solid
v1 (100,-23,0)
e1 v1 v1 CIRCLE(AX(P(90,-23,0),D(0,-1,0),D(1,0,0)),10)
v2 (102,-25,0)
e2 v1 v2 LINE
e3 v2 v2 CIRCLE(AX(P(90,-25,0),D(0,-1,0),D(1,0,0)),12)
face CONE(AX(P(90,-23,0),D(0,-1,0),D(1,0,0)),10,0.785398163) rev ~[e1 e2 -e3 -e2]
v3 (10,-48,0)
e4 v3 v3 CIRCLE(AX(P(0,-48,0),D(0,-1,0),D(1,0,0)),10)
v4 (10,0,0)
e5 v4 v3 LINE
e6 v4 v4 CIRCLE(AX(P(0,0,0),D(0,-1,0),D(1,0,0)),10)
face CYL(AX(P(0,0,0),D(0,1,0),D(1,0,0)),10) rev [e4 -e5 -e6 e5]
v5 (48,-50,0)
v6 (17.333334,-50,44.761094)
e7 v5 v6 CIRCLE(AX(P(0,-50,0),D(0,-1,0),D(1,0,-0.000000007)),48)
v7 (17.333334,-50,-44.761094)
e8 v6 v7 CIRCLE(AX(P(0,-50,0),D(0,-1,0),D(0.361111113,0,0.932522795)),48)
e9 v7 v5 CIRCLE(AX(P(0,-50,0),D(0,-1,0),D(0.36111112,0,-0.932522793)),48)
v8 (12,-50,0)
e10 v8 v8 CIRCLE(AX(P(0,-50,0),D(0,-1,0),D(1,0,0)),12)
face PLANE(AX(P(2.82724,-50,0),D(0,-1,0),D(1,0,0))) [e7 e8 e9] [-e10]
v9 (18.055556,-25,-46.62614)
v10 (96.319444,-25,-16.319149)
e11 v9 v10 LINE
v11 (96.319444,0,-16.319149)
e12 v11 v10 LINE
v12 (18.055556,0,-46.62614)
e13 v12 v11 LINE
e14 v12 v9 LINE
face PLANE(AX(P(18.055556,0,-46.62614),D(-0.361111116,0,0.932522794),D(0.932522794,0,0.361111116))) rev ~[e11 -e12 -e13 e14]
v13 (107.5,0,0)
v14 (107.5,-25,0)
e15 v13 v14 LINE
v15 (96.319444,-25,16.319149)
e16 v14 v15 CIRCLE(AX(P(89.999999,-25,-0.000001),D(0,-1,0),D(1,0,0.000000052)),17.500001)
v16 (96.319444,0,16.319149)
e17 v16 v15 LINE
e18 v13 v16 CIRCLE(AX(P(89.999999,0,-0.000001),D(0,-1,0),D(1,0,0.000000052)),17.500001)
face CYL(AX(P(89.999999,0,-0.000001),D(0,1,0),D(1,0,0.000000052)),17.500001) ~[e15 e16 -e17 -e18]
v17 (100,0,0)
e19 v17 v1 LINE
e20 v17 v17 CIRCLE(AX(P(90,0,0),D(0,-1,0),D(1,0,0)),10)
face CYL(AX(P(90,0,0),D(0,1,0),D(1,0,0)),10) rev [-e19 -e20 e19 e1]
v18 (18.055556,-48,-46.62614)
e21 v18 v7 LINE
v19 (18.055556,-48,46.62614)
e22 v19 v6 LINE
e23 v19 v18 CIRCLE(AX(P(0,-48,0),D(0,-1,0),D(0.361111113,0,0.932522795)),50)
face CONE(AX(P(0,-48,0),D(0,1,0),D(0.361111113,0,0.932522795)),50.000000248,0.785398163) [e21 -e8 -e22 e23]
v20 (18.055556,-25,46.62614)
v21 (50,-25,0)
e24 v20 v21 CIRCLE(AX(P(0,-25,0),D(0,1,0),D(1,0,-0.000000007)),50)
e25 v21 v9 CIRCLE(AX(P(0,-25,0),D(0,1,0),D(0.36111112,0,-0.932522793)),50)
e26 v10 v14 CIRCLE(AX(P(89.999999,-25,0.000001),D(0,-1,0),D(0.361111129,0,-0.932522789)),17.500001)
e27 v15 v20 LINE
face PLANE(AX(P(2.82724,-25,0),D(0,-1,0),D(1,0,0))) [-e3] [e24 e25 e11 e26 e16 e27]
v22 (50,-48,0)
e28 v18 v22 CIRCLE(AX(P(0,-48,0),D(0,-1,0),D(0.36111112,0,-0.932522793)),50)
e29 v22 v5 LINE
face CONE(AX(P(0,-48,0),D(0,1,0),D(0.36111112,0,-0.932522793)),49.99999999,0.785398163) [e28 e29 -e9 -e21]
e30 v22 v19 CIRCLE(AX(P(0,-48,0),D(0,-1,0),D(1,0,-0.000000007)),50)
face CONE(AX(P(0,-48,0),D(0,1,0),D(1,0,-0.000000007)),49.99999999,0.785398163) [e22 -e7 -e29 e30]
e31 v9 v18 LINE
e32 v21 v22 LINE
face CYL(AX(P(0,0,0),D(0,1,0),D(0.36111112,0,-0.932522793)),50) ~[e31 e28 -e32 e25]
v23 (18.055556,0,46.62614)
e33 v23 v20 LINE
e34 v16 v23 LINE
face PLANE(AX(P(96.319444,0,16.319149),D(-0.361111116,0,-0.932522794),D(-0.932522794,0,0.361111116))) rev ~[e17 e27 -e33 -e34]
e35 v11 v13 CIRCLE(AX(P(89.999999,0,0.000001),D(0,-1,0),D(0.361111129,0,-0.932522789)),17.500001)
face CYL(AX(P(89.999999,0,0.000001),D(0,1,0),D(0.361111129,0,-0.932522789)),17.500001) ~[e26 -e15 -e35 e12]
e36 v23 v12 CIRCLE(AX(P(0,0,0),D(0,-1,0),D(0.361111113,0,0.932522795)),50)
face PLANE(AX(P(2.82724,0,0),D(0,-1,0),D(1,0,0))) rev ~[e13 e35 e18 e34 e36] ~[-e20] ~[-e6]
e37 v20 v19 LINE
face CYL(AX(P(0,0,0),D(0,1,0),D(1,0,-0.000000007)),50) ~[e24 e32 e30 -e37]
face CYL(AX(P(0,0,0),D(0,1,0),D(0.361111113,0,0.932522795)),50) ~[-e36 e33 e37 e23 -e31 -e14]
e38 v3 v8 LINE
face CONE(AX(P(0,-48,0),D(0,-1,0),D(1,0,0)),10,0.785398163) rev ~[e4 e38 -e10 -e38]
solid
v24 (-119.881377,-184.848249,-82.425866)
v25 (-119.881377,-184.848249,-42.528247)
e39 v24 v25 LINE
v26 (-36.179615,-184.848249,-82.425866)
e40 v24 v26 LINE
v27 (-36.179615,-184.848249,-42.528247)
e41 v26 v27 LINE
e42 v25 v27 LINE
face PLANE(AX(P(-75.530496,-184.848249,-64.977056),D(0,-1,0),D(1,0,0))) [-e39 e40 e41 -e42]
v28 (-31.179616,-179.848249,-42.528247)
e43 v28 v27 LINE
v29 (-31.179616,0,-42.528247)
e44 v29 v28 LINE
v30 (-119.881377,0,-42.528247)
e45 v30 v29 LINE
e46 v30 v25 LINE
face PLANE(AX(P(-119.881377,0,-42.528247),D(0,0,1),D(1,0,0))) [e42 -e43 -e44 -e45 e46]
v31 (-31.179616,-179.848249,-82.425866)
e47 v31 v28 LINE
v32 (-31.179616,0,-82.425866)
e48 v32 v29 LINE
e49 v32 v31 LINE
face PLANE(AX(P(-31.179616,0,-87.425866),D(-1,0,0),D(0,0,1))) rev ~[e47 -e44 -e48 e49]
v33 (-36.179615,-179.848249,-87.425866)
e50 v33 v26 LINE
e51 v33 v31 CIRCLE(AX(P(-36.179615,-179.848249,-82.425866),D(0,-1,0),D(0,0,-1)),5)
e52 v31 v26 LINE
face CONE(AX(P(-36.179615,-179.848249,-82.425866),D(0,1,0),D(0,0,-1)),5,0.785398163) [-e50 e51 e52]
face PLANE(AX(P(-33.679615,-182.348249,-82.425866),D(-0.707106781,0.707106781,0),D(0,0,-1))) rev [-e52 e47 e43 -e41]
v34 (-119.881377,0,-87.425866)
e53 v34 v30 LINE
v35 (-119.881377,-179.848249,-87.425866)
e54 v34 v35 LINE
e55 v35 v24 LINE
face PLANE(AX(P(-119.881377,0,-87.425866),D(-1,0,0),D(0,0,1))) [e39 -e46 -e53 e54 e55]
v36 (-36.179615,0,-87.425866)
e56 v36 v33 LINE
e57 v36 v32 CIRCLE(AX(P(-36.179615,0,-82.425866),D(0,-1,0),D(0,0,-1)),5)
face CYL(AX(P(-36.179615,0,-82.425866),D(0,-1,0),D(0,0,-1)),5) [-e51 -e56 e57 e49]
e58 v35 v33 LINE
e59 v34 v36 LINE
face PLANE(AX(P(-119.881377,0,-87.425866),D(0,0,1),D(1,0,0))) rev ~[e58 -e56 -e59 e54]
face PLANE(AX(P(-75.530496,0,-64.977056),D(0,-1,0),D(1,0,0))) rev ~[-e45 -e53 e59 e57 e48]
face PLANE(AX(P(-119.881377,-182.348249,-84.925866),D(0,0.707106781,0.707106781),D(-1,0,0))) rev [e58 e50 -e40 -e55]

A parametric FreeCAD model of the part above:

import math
import FreeCAD as App
import Part
import Sketcher

V = App.Vector


def edges_at(feature, points):
    """Names of the edges that pass closest to the given points."""
    edges = feature.Shape.Edges
    near = lambda p: min(range(len(edges)), key=lambda i: edges[i].distToShape(Part.Vertex(*p))[0])
    return sorted({f"Edge{near(p) + 1}" for p in points})

doc = App.newDocument("Part")
params = doc.addObject("Spreadsheet::Sheet", "Params")
for row, (alias, value) in enumerate([
    ("sketch1_diameter", "20 mm"),
    ("sketch1_radius", "50 mm"),
    ("sketch1_radius2", "17.500001 mm"),
    ("pad1_length", "25 mm"),
    ("sketch2_diameter", "20 mm"),
    ("sketch2_radius", "50 mm"),
    ("pad2_length", "50 mm"),
    ("chamfer_size", "2 mm"),
    ("pad3_length", "184.848249 mm"),
    ("fillet_radius", "5 mm"),
    ("chamfer2_size", "5 mm"),
], start=1):
    params.set(f"A{row}", alias)
    params.set(f"B{row}", "=" + value)
    params.setAlias(f"B{row}", alias)

body = doc.addObject("PartDesign::Body", "Body")

sketch1 = body.newObject("Sketcher::SketchObject", "Sketch")
sketch1.AttachmentSupport = (doc.getObject("XZ_Plane"), [""])
sketch1.MapMode = "FlatFace"
sketch1.addGeometry(Part.ArcOfCircle(Part.Circle(V(0, 0, 0), V(0, 0, 1), 50), math.radians(69), math.radians(291)), False)
sketch1.addGeometry(Part.LineSegment(V(18, -47, 0), V(96, -16, 0)), False)
sketch1.addGeometry(Part.ArcOfCircle(Part.Circle(V(90, 0, 0), V(0, 0, 1), 18), math.radians(-69), math.radians(0)), False)
sketch1.addGeometry(Part.ArcOfCircle(Part.Circle(V(90, 0, 0), V(0, 0, 1), 18), math.radians(0), math.radians(69)), False)
sketch1.addGeometry(Part.LineSegment(V(96, 16, 0), V(18, 47, 0)), False)
sketch1.addGeometry(Part.Circle(V(0, 0, 0), V(0, 0, 1), 10), False)
sketch1.addGeometry(Part.Circle(V(90, 0, 0), V(0, 0, 1), 10), False)
sketch1.addConstraint(Sketcher.Constraint("Tangent", 0, 2, 1, 1))
sketch1.addConstraint(Sketcher.Constraint("Tangent", 1, 2, 2, 1))
sketch1.addConstraint(Sketcher.Constraint("Tangent", 2, 2, 3, 1))
sketch1.addConstraint(Sketcher.Constraint("Tangent", 3, 2, 4, 1))
sketch1.addConstraint(Sketcher.Constraint("Tangent", 4, 2, 0, 1))
sketch1.addConstraint(Sketcher.Constraint("Coincident", 0, 3, -1, 1))
sketch1.addConstraint(Sketcher.Constraint("Coincident", 5, 3, -1, 1))
sketch1.addConstraint(Sketcher.Constraint("Coincident", 6, 3, 2, 3))
sketch1.addConstraint(Sketcher.Constraint("Equal", 2, 3))
sketch1.addConstraint(Sketcher.Constraint("Equal", 5, 6))
sketch1.addConstraint(Sketcher.Constraint("PointOnObject", 2, 3, -1))
sketch1.addConstraint(Sketcher.Constraint("PointOnObject", 2, 2, -1))
sketch1.addConstraint(Sketcher.Constraint("Diameter", 5, 20.0))
sketch1.addConstraint(Sketcher.Constraint("Radius", 0, 50.0))
sketch1.addConstraint(Sketcher.Constraint("Radius", 2, 17.500001))
sketch1.addConstraint(Sketcher.Constraint("DistanceX", -1, 1, 2, 3, 89.999999))
sketch1.setExpression("Constraints[12]", "Params.sketch1_diameter")
sketch1.setExpression("Constraints[13]", "Params.sketch1_radius")
sketch1.setExpression("Constraints[14]", "Params.sketch1_radius2")
pad1 = body.newObject("PartDesign::Pad", "Pad")
pad1.Profile = sketch1
pad1.setExpression("Length", "Params.pad1_length")

sketch2 = body.newObject("Sketcher::SketchObject", "Sketch001")
sketch2.AttachmentSupport = (doc.getObject("XZ_Plane"), [""])
sketch2.MapMode = "FlatFace"
sketch2.addGeometry(Part.ArcOfCircle(Part.Circle(V(0, 0, 0), V(0, 0, 1), 50), math.radians(-69), math.radians(0)), False)
sketch2.addGeometry(Part.ArcOfCircle(Part.Circle(V(0, 0, 0), V(0, 0, 1), 50), math.radians(0), math.radians(69)), False)
sketch2.addGeometry(Part.ArcOfCircle(Part.Circle(V(0, 0, 0), V(0, 0, 1), 50), math.radians(69), math.radians(291)), False)
sketch2.addGeometry(Part.Circle(V(0, 0, 0), V(0, 0, 1), 10), False)
sketch2.addConstraint(Sketcher.Constraint("Tangent", 0, 2, 1, 1))
sketch2.addConstraint(Sketcher.Constraint("Tangent", 1, 2, 2, 1))
sketch2.addConstraint(Sketcher.Constraint("Tangent", 2, 2, 0, 1))
sketch2.addConstraint(Sketcher.Constraint("Coincident", 0, 3, -1, 1))
sketch2.addConstraint(Sketcher.Constraint("Coincident", 3, 3, -1, 1))
sketch2.addConstraint(Sketcher.Constraint("PointOnObject", 0, 2, -1))
sketch2.addConstraint(Sketcher.Constraint("Vertical", 1, 2, 2, 2))
sketch2.addConstraint(Sketcher.Constraint("Diameter", 3, 20.0))
sketch2.addConstraint(Sketcher.Constraint("Radius", 0, 50.0))
sketch2.addConstraint(Sketcher.Constraint("DistanceY", -1, 1, 1, 2, 46.62614))
sketch2.setExpression("Constraints[7]", "Params.sketch2_diameter")
sketch2.setExpression("Constraints[8]", "Params.sketch2_radius")
pad2 = body.newObject("PartDesign::Pad", "Pad001")
pad2.Profile = sketch2
pad2.setExpression("Length", "Params.pad2_length")
doc.recompute()

chamfer = body.newObject("PartDesign::Chamfer", "Chamfer")
chamfer.Base = (pad2, edges_at(pad2, [(-50, -50, 0), (-10, -50, 0), (80, -25, 0)]))
chamfer.setExpression("Size", "Params.chamfer_size")
body2 = doc.addObject("PartDesign::Body", "Body001")

sketch3 = body2.newObject("Sketcher::SketchObject", "Sketch002")
sketch3.AttachmentSupport = (doc.getObject("XZ_Plane001"), [""])
sketch3.MapMode = "FlatFace"
sketch3.addGeometry(Part.LineSegment(V(-120, -43, 0), V(-120, -87, 0)), False)
sketch3.addGeometry(Part.LineSegment(V(-120, -87, 0), V(-31, -87, 0)), False)
sketch3.addGeometry(Part.LineSegment(V(-31, -87, 0), V(-31, -43, 0)), False)
sketch3.addGeometry(Part.LineSegment(V(-31, -43, 0), V(-120, -43, 0)), False)
sketch3.addConstraint(Sketcher.Constraint("Coincident", 0, 2, 1, 1))
sketch3.addConstraint(Sketcher.Constraint("Coincident", 1, 2, 2, 1))
sketch3.addConstraint(Sketcher.Constraint("Coincident", 2, 2, 3, 1))
sketch3.addConstraint(Sketcher.Constraint("Coincident", 3, 2, 0, 1))
sketch3.addConstraint(Sketcher.Constraint("Vertical", 0))
sketch3.addConstraint(Sketcher.Constraint("Horizontal", 1))
sketch3.addConstraint(Sketcher.Constraint("Vertical", 2))
sketch3.addConstraint(Sketcher.Constraint("Horizontal", 3))
sketch3.addConstraint(Sketcher.Constraint("DistanceX", 1, 1, 1, 2, 88.701761))
sketch3.addConstraint(Sketcher.Constraint("DistanceY", 0, 2, 0, 1, 44.897619))
sketch3.addConstraint(Sketcher.Constraint("DistanceX", 0, 2, -1, 1, 119.881377))
sketch3.addConstraint(Sketcher.Constraint("DistanceY", 0, 2, -1, 1, 87.425866))
pad3 = body2.newObject("PartDesign::Pad", "Pad002")
pad3.Profile = sketch3
pad3.setExpression("Length", "Params.pad3_length")
doc.recompute()

fillet = body2.newObject("PartDesign::Fillet", "Fillet")
fillet.Base = (pad3, edges_at(pad3, [(-31.18, -92.424, -87.426)]))
fillet.setExpression("Radius", "Params.fillet_radius")
doc.recompute()

chamfer2 = body2.newObject("PartDesign::Chamfer", "Chamfer001")
chamfer2.Base = (fillet, edges_at(fillet, [(-78.03, -184.848, -87.426)]))
chamfer2.setExpression("Size", "Params.chamfer2_size")

doc.recompute()
